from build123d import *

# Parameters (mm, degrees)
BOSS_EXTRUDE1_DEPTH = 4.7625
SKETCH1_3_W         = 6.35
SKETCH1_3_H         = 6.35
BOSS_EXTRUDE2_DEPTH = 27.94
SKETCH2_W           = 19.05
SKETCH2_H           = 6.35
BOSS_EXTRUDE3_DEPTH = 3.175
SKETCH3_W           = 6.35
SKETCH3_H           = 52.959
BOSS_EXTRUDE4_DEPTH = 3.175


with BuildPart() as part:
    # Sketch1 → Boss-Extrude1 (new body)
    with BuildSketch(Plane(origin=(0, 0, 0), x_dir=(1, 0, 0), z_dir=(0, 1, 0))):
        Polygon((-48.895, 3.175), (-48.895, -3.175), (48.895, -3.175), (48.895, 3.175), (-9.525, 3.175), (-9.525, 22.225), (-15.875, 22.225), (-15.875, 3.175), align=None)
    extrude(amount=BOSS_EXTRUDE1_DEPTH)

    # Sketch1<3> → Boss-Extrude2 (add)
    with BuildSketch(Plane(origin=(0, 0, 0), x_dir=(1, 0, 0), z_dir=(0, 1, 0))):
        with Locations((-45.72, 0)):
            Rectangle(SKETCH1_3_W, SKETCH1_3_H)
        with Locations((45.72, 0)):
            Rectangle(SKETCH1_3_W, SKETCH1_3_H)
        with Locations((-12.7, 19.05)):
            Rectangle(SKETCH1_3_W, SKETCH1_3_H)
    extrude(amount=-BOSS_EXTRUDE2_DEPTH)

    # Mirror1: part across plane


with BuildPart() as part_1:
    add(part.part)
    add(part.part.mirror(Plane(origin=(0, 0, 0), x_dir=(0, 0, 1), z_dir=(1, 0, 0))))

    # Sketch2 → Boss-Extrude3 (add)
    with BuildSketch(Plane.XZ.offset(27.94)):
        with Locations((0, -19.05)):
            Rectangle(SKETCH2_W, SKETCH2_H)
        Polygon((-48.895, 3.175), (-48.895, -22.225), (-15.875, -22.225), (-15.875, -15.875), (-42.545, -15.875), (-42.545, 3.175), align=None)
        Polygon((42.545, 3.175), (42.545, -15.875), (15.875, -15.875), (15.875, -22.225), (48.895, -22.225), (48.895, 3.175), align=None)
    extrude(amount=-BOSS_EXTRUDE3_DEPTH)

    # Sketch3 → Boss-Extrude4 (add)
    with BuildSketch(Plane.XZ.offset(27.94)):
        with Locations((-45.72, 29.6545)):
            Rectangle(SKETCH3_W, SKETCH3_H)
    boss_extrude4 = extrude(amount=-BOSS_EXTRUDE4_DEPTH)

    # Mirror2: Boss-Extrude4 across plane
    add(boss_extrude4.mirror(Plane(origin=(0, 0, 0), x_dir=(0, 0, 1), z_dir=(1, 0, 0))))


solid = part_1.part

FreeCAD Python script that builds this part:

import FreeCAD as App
import Part
import Sketcher
Q = App.Units.Quantity


def add_polygon(sketch, points):
    """Adds a closed chain of lines whose ends are joined by coincident constraints."""
    first, n = sketch.GeometryCount, len(points)
    for a, b in zip(points, points[1:] + points[:1]):
        sketch.addGeometry(Part.LineSegment(App.Vector(*a, 0), App.Vector(*b, 0)), False)
    for i in range(n):
        sketch.addConstraint(Sketcher.Constraint("Coincident", first + i, 2, first + (i + 1) % n, 1))

doc = App.newDocument("Part")
params = doc.addObject("Spreadsheet::Sheet", "Params")
for row, (alias, value) in enumerate([
    ("sketch1_width", "2.3 in"),
    ("sketch1_width2", "1.3 in"),
    ("sketch1_width3", "3.85 in"),
    ("pad1_length", "0.1875 in"),
    ("sketch2_width", "0.25 in"),
    ("pad2_length", "1.1 in"),
    ("sketch3_height", "1 in"),
    ("sketch3_width", "1.3 in"),
    ("sketch3_width2", "0.75 in"),
    ("pad3_length", "0.125 in"),
    ("sketch4_width", "0.25 in"),
    ("sketch4_height", "2.085 in"),
    ("pad4_length", "0.125 in"),
], start=1):
    params.set(f"A{row}", alias)
    params.set(f"B{row}", "=" + value)
    params.setAlias(f"B{row}", alias)

body = doc.addObject("PartDesign::Body", "Body")

sketch1 = body.newObject("Sketcher::SketchObject", "Sketch")
sketch1.AttachmentSupport = (doc.getObject("XZ_Plane"), [""])
sketch1.MapMode = "FlatFace"
add_polygon(sketch1, [(-49, -3), (-49, 3), (49, 3), (49, -3), (-10, -3), (-10, -22), (-16, -22), (-16, -3)])
sketch1.addConstraint(Sketcher.Constraint("Vertical", 0))
sketch1.addConstraint(Sketcher.Constraint("Horizontal", 1))
sketch1.addConstraint(Sketcher.Constraint("Vertical", 2))
sketch1.addConstraint(Sketcher.Constraint("Horizontal", 3))
sketch1.addConstraint(Sketcher.Constraint("Vertical", 4))
sketch1.addConstraint(Sketcher.Constraint("Horizontal", 5))
sketch1.addConstraint(Sketcher.Constraint("Vertical", 6))
sketch1.addConstraint(Sketcher.Constraint("Horizontal", 7))
sketch1.addConstraint(Sketcher.Constraint("Symmetric", 0, 2, 2, 2, -1, 1))
sketch1.addConstraint(Sketcher.Constraint("Horizontal", 3, 2, 6, 2))
sketch1.addConstraint(Sketcher.Constraint("Equal", 5, 0))
sketch1.addConstraint(Sketcher.Constraint("DistanceX", 3, 2, 3, 1, Q("2.3 in")))
sketch1.addConstraint(Sketcher.Constraint("DistanceX", 7, 2, 7, 1, Q("1.3 in")))
sketch1.addConstraint(Sketcher.Constraint("DistanceY", 4, 2, 0, 2, Q("1 in")))
sketch1.addConstraint(Sketcher.Constraint("DistanceX", 1, 1, 1, 2, Q("3.85 in")))
sketch1.setExpression("Constraints[19]", "Params.sketch1_width")
sketch1.setExpression("Constraints[20]", "Params.sketch1_width2")
sketch1.setExpression("Constraints[22]", "Params.sketch1_width3")
pad1 = body.newObject("PartDesign::Pad", "Pad")
pad1.Profile = sketch1
pad1.setExpression("Length", "Params.pad1_length")
pad1.Reversed = True

sketch2 = body.newObject("Sketcher::SketchObject", "Sketch001")
sketch2.AttachmentSupport = (doc.getObject("XZ_Plane"), [""])
sketch2.MapMode = "FlatFace"
add_polygon(sketch2, [(-49, -3), (-49, 3), (-43, 3), (-43, -3)])
add_polygon(sketch2, [(43, -3), (43, 3), (49, 3), (49, -3)])
add_polygon(sketch2, [(-16, -22), (-16, -16), (-10, -16), (-10, -22)])
sketch2.addConstraint(Sketcher.Constraint("Vertical", 0))
sketch2.addConstraint(Sketcher.Constraint("Horizontal", 1))
sketch2.addConstraint(Sketcher.Constraint("Vertical", 2))
sketch2.addConstraint(Sketcher.Constraint("Horizontal", 3))
sketch2.addConstraint(Sketcher.Constraint("Vertical", 4))
sketch2.addConstraint(Sketcher.Constraint("Horizontal", 5))
sketch2.addConstraint(Sketcher.Constraint("Vertical", 6))
sketch2.addConstraint(Sketcher.Constraint("Horizontal", 7))
sketch2.addConstraint(Sketcher.Constraint("Vertical", 8))
sketch2.addConstraint(Sketcher.Constraint("Horizontal", 9))
sketch2.addConstraint(Sketcher.Constraint("Vertical", 10))
sketch2.addConstraint(Sketcher.Constraint("Horizontal", 11))
sketch2.addConstraint(Sketcher.Constraint("Symmetric", 2, 2, 4, 2, -1, 1))
sketch2.addConstraint(Sketcher.Constraint("Symmetric", 0, 2, 6, 2, -1, 1))
sketch2.addConstraint(Sketcher.Constraint("Horizontal", 1, 2, 4, 2))
sketch2.addConstraint(Sketcher.Constraint("Equal", 7, 9))
sketch2.addConstraint(Sketcher.Constraint("Equal", 11, 0))
sketch2.addConstraint(Sketcher.Constraint("Equal", 6, 8))
sketch2.addConstraint(Sketcher.Constraint("DistanceY", 10, 2, 1, 2, Q("1 in")))
sketch2.addConstraint(Sketcher.Constraint("DistanceX", 1, 1, 1, 2, Q("0.25 in")))
sketch2.addConstraint(Sketcher.Constraint("DistanceX", 0, 2, 4, 2, Q("3.6 in")))
sketch2.addConstraint(Sketcher.Constraint("DistanceX", 3, 2, 8, 2, Q("1.3 in")))
sketch2.setExpression("Constraints[31]", "Params.sketch2_width")
pad2 = body.newObject("PartDesign::Pad", "Pad001")
pad2.Profile = sketch2
pad2.setExpression("Length", "Params.pad2_length")
body2 = doc.addObject("PartDesign::Body", "Body001")
doc.recompute()

body2.BaseFeature = body
doc.recompute()

mirroring = doc.addObject("Part::Mirroring", "Mirroring")
mirroring.Source = body
mirroring.Base = App.Vector(0, 0, 0)
mirroring.Normal = App.Vector(1, 0, 0)
body3 = doc.addObject("PartDesign::Body", "Body002")
body3.BaseFeature = mirroring
boolean = body2.newObject("PartDesign::Boolean", "Boolean")
boolean.Type = "Fuse"
boolean.addObjects([body3])
doc.recompute()

sketch3 = body2.newObject("Sketcher::SketchObject", "Sketch002")
sketch3.AttachmentSupport = (doc.getObject("XZ_Plane001"), [""])
sketch3.MapMode = "FlatFace"
sketch3.AttachmentOffset = App.Placement(App.Vector(0, 0, 1.1 * 25.4), App.Rotation())
add_polygon(sketch3, [(-10, -16), (-10, -22), (10, -22), (10, -16)])
add_polygon(sketch3, [(-49, 3), (-49, -22), (-16, -22), (-16, -16), (-43, -16), (-43, 3)])
add_polygon(sketch3, [(43, 3), (43, -16), (16, -16), (16, -22), (49, -22), (49, 3)])
sketch3.addConstraint(Sketcher.Constraint("Vertical", 0))
sketch3.addConstraint(Sketcher.Constraint("Horizontal", 1))
sketch3.addConstraint(Sketcher.Constraint("Vertical", 2))
sketch3.addConstraint(Sketcher.Constraint("Horizontal", 3))
sketch3.addConstraint(Sketcher.Constraint("Vertical", 4))
sketch3.addConstraint(Sketcher.Constraint("Horizontal", 5))
sketch3.addConstraint(Sketcher.Constraint("Vertical", 6))
sketch3.addConstraint(Sketcher.Constraint("Horizontal", 7))
sketch3.addConstraint(Sketcher.Constraint("Vertical", 8))
sketch3.addConstraint(Sketcher.Constraint("Horizontal", 9))
sketch3.addConstraint(Sketcher.Constraint("Vertical", 10))
sketch3.addConstraint(Sketcher.Constraint("Horizontal", 11))
sketch3.addConstraint(Sketcher.Constraint("Vertical", 12))
sketch3.addConstraint(Sketcher.Constraint("Horizontal", 13))
sketch3.addConstraint(Sketcher.Constraint("Vertical", 14))
sketch3.addConstraint(Sketcher.Constraint("Horizontal", 15))
sketch3.addConstraint(Sketcher.Constraint("Symmetric", 7, 2, 10, 2, -2))
sketch3.addConstraint(Sketcher.Constraint("Symmetric", 5, 2, 12, 2, -2))
sketch3.addConstraint(Sketcher.Constraint("Symmetric", 9, 2, 14, 2, -2))
sketch3.addConstraint(Sketcher.Constraint("Horizontal", 1, 2, 4, 2))
sketch3.addConstraint(Sketcher.Constraint("Horizontal", 3, 2, 6, 2))
sketch3.addConstraint(Sketcher.Constraint("Equal", 15, 0))
sketch3.addConstraint(Sketcher.Constraint("Equal", 3, 8))
sketch3.addConstraint(Sketcher.Constraint("DistanceY", 4, 2, 4, 1, Q("1 in")))
sketch3.addConstraint(Sketcher.Constraint("DistanceX", 5, 1, 5, 2, Q("1.3 in")))
sketch3.addConstraint(Sketcher.Constraint("DistanceX", 5, 2, 1, 2, Q("1 in")))
sketch3.addConstraint(Sketcher.Constraint("DistanceX", 3, 2, 11, 2, Q("1 in")))
sketch3.addConstraint(Sketcher.Constraint("DistanceX", 1, 1, 1, 2, Q("0.75 in")))
sketch3.addConstraint(Sketcher.Constraint("DistanceY", 0, 2, -1, 1, Q("0.875 in")))
sketch3.setExpression("Constraints[39]", "Params.sketch3_height")
sketch3.setExpression("Constraints[40]", "Params.sketch3_width")
sketch3.setExpression("Constraints[43]", "Params.sketch3_width2")
pad3 = body2.newObject("PartDesign::Pad", "Pad002")
pad3.Profile = sketch3
pad3.setExpression("Length", "Params.pad3_length")
pad3.Reversed = True

sketch4 = body2.newObject("Sketcher::SketchObject", "Sketch003")
sketch4.AttachmentSupport = (doc.getObject("XZ_Plane001"), [""])
sketch4.MapMode = "FlatFace"
sketch4.AttachmentOffset = App.Placement(App.Vector(0, 0, 1.1 * 25.4), App.Rotation())
add_polygon(sketch4, [(-49, 56), (-49, 3), (-43, 3), (-43, 56)])
sketch4.addConstraint(Sketcher.Constraint("Vertical", 0))
sketch4.addConstraint(Sketcher.Constraint("Horizontal", 1))
sketch4.addConstraint(Sketcher.Constraint("Vertical", 2))
sketch4.addConstraint(Sketcher.Constraint("Horizontal", 3))
sketch4.addConstraint(Sketcher.Constraint("DistanceX", 1, 1, 1, 2, Q("0.25 in")))
sketch4.addConstraint(Sketcher.Constraint("DistanceY", 0, 2, 0, 1, Q("2.085 in")))
sketch4.addConstraint(Sketcher.Constraint("DistanceY", -1, 1, 2, 2, Q("2.21 in")))
sketch4.addConstraint(Sketcher.Constraint("DistanceX", 0, 2, -1, 1, Q("1.925 in")))
sketch4.setExpression("Constraints[8]", "Params.sketch4_width")
sketch4.setExpression("Constraints[9]", "Params.sketch4_height")
pad4 = body2.newObject("PartDesign::Pad", "Pad003")
pad4.Profile = sketch4
pad4.setExpression("Length", "Params.pad4_length")
pad4.Reversed = True
doc.recompute()

mirrored = body2.newObject("PartDesign::Mirrored", "Mirrored")
mirrored.Originals = [pad4]
mirrored.MirrorPlane = (doc.getObject("YZ_Plane001"), [""])
body2.Tip = mirrored
mirroring.Visibility = False

doc.recompute()
